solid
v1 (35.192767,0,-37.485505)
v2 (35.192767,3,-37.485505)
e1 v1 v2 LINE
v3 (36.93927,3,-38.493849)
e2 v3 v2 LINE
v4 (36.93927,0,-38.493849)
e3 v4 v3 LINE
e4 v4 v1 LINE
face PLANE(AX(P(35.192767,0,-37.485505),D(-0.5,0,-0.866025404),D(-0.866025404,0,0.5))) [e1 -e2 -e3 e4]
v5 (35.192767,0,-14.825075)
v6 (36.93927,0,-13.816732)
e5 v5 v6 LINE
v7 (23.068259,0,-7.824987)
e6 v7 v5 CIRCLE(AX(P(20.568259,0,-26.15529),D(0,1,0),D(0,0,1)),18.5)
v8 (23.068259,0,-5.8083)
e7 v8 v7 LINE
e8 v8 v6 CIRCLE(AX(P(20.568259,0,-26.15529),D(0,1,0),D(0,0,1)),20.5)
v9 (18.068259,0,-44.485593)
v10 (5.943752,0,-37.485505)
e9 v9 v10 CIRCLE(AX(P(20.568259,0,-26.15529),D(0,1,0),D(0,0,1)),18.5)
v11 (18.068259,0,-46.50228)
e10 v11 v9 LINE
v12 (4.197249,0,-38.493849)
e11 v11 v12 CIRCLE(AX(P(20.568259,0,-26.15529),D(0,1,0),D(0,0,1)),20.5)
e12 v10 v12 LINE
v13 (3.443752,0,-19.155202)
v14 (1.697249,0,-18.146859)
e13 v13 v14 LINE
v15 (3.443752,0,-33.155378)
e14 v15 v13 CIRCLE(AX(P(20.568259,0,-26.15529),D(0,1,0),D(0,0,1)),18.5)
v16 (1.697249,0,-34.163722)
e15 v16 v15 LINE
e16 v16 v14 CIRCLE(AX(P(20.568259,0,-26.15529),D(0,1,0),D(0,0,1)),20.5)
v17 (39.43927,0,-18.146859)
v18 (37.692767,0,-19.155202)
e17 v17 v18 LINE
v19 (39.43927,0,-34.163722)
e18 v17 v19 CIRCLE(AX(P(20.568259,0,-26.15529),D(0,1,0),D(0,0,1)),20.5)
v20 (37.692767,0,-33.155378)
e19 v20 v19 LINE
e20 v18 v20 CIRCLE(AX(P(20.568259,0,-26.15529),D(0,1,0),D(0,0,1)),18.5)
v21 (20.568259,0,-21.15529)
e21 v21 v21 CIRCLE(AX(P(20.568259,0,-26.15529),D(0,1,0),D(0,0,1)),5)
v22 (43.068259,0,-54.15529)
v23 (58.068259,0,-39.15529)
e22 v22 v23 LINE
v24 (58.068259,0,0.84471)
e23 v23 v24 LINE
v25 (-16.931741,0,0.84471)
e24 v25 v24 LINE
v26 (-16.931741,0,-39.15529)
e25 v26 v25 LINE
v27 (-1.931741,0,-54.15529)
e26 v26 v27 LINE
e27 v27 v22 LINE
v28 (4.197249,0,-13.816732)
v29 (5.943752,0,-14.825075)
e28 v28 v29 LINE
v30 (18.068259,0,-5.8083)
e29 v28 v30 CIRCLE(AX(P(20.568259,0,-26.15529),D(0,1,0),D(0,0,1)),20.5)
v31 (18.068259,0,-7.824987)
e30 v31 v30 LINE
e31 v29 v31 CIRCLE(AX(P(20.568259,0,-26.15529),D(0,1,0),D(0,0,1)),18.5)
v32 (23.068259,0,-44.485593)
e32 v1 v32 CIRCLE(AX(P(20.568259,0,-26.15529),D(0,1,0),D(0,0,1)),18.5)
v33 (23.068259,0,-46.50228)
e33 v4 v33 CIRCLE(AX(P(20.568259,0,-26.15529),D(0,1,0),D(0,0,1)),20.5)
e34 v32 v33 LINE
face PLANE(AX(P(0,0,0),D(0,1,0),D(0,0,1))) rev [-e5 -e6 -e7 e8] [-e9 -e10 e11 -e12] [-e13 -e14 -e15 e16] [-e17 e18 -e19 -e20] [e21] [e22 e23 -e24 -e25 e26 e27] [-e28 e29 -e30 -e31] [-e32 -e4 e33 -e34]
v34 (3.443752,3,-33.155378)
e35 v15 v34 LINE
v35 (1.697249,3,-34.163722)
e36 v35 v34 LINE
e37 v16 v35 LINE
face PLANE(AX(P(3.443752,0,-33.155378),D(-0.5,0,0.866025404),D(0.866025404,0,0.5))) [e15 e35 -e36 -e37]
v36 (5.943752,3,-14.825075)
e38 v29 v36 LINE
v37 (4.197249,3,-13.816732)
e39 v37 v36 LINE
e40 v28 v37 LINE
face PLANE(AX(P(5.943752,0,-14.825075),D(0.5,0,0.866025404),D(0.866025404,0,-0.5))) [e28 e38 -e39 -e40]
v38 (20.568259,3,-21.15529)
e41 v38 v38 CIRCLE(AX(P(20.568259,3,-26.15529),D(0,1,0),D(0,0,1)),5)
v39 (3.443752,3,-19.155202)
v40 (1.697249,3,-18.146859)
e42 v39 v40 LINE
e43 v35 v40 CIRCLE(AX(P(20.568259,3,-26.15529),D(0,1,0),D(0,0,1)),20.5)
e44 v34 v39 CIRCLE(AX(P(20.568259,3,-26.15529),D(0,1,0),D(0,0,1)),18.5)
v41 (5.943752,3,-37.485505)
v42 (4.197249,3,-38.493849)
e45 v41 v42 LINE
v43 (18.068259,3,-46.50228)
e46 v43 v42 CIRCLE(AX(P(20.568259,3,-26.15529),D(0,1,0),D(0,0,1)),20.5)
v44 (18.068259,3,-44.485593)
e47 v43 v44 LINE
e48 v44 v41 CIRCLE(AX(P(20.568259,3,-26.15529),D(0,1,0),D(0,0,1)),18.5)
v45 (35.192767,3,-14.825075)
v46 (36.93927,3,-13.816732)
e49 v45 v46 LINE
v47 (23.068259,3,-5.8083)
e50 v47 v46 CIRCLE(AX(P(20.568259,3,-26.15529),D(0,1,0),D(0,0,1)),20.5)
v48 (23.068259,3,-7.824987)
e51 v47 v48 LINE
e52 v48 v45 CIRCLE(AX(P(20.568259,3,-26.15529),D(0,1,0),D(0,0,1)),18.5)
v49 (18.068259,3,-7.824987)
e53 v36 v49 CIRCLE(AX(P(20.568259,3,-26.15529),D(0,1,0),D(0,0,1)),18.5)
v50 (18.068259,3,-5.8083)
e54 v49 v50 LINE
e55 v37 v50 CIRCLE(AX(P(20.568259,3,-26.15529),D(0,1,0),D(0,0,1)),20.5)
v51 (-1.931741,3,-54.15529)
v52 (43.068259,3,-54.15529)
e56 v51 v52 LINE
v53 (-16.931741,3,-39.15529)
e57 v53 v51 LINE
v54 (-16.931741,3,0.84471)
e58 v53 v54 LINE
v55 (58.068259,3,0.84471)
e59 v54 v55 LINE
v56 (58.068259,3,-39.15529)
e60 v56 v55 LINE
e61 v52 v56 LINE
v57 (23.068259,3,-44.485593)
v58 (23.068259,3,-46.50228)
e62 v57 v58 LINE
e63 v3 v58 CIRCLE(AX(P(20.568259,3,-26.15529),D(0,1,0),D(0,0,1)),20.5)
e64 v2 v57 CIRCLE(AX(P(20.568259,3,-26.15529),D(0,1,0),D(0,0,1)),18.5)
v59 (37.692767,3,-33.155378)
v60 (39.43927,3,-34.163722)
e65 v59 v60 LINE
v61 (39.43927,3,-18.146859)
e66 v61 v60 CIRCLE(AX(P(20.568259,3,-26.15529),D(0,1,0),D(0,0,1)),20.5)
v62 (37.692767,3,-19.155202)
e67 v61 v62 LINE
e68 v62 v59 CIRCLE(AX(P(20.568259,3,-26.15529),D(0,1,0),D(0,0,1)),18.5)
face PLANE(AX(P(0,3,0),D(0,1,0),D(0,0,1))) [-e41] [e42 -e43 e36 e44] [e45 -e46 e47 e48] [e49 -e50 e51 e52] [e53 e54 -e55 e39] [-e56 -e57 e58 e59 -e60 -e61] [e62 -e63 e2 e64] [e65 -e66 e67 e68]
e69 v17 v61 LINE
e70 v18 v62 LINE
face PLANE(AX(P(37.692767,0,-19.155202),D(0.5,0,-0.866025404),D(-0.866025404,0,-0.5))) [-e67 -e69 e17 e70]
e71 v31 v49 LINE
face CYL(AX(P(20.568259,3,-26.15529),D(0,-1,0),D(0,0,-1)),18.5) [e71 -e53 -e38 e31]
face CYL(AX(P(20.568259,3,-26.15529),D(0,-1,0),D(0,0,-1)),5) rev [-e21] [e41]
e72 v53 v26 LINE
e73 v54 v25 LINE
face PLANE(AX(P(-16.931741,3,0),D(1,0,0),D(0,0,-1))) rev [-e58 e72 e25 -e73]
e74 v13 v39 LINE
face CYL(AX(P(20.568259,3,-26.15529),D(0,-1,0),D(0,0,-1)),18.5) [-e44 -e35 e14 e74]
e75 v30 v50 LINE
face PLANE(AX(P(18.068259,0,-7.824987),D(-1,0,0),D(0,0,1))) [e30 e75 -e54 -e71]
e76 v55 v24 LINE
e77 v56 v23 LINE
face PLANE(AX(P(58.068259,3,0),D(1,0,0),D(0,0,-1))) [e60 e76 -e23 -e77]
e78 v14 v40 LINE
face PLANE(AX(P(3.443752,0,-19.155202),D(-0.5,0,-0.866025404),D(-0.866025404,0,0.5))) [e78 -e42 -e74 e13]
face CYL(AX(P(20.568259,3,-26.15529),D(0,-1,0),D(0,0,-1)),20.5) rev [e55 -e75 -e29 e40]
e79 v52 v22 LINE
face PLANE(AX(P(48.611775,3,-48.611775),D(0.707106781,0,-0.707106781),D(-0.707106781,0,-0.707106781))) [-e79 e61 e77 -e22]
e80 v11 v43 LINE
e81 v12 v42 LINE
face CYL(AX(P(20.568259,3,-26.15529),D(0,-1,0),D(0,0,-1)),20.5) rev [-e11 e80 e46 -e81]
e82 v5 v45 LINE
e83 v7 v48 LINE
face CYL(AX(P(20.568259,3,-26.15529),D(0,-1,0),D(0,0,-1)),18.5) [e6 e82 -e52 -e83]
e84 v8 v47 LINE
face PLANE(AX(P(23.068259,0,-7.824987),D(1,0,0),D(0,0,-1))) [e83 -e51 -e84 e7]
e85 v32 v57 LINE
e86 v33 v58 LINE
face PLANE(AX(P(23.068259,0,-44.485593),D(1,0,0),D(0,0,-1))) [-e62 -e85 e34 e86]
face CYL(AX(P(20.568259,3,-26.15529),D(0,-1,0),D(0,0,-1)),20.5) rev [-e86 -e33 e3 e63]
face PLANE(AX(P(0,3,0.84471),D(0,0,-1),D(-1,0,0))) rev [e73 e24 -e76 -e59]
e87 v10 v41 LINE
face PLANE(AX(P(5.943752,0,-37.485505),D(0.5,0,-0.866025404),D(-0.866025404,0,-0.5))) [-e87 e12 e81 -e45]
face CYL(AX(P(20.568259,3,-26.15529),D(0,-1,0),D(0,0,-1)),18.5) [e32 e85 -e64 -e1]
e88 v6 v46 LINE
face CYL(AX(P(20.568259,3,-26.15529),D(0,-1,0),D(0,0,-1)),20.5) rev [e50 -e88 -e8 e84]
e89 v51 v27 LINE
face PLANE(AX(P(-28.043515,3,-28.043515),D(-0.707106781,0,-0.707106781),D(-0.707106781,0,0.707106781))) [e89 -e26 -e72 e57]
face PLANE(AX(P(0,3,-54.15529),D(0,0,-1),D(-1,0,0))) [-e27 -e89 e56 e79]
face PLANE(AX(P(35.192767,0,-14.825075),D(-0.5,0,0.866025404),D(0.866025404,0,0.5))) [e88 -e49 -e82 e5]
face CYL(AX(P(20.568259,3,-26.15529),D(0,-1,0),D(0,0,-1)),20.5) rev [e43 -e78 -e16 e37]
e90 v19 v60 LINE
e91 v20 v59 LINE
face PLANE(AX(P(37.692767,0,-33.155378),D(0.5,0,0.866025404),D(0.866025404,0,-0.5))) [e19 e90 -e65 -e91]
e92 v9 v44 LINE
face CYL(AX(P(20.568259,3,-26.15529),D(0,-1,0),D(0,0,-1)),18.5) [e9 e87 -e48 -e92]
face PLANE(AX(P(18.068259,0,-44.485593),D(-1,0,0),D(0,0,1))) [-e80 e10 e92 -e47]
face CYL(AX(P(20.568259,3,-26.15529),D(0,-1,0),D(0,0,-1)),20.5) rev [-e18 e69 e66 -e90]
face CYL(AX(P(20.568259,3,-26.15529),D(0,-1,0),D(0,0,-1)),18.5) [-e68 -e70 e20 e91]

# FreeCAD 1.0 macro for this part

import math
import FreeCAD as App
import Part
import Sketcher
from FreeCAD import Vector
Q = App.Units.Quantity

doc = App.newDocument("Part")
body = doc.addObject("PartDesign::Body", "Body")

sketch1 = body.newObject("Sketcher::SketchObject", "Sketch")
sketch1.AttachmentSupport = (doc.getObject("XZ_Plane"), [""])
sketch1.MapMode = "FlatFace"
sketch1.addGeometry([
    Part.Circle(Vector(21, -26, 0), Vector(0, 0, 1), 18),
    Part.Circle(Vector(21, -26, 0), Vector(0, 0, 1), 5),
], False)
sketch1.addConstraint([
    Sketcher.Constraint("Coincident", 1, 3, 0, 3),
    Sketcher.Constraint("Diameter", 0, 37.0),
    Sketcher.Constraint("Diameter", 1, 10.0),
    Sketcher.Constraint("DistanceX", -1, 1, 0, 3, 20.568259),
    Sketcher.Constraint("DistanceY", 0, 3, -1, 1, 26.15529),
])
pad1 = body.newObject("PartDesign::Pad", "Pad")
pad1.Profile = sketch1
pad1.Length = 3
pad1.Reversed = True
body2 = doc.addObject("PartDesign::Body", "Body001")

sketch2 = body2.newObject("Sketcher::SketchObject", "Sketch001")
sketch2.AttachmentSupport = (doc.getObject("XZ_Plane001"), [""])
sketch2.MapMode = "FlatFace"
sketch2.addGeometry([
    Part.LineSegment(Vector(-2, -54, 0), Vector(-17, -39, 0)),
    Part.LineSegment(Vector(-17, -39, 0), Vector(-17, 1, 0)),
    Part.LineSegment(Vector(-17, 1, 0), Vector(58, 1, 0)),
    Part.LineSegment(Vector(58, 1, 0), Vector(58, -39, 0)),
    Part.LineSegment(Vector(58, -39, 0), Vector(43, -54, 0)),
    Part.LineSegment(Vector(43, -54, 0), Vector(-2, -54, 0)),
    Part.Circle(Vector(21, -26, 0), Vector(0, 0, 1), 20),
], False)
sketch2.addConstraint([
    Sketcher.Constraint("Coincident", 0, 2, 1, 1),
    Sketcher.Constraint("Coincident", 1, 2, 2, 1),
    Sketcher.Constraint("Coincident", 2, 2, 3, 1),
    Sketcher.Constraint("Coincident", 3, 2, 4, 1),
    Sketcher.Constraint("Coincident", 4, 2, 5, 1),
    Sketcher.Constraint("Coincident", 5, 2, 0, 1),
    Sketcher.Constraint("Vertical", 1),
    Sketcher.Constraint("Horizontal", 2),
    Sketcher.Constraint("Vertical", 3),
    Sketcher.Constraint("Horizontal", 5),
    Sketcher.Constraint("Perpendicular", 0, 4),
    Sketcher.Constraint("Horizontal", 0, 2, 3, 2),
    Sketcher.Constraint("Equal", 0, 4),
    Sketcher.Constraint("Diameter", 6, 41.0),
    Sketcher.Constraint("DistanceX", 2, 1, 2, 2, 75.0),
    Sketcher.Constraint("DistanceX", 5, 2, 5, 1, 45.0),
    Sketcher.Constraint("DistanceY", 1, 1, 1, 2, 40.0),
    Sketcher.Constraint("DistanceY", 0, 2, 6, 3, 13.0),
    Sketcher.Constraint("DistanceX", 0, 2, 6, 3, 37.5),
    Sketcher.Constraint("DistanceX", -1, 1, 6, 3, 20.568259),
    Sketcher.Constraint("DistanceY", 6, 3, -1, 1, 26.15529),
])
pad2 = body2.newObject("PartDesign::Pad", "Pad001")
pad2.Profile = sketch2
pad2.Length = 3
pad2.Reversed = True
body.AllowCompound = True
doc.recompute()

boolean = body.newObject("PartDesign::Boolean", "Boolean")
boolean.Type = "Fuse"
boolean.addObjects([body2])

sketch3 = body.newObject("Sketcher::SketchObject", "Sketch002")
sketch3.AttachmentSupport = (doc.getObject("XZ_Plane"), [""])
sketch3.MapMode = "FlatFace"
sketch3.AttachmentOffset = App.Placement(Vector(0, 0, -3), App.Rotation())
sketch3.addGeometry([
    Part.LineSegment(Vector(18.1, -46.5, 0), Vector(18.1, -44.5, 0)),
    Part.ArcOfCircle(Part.Circle(Vector(20.6, -26.2, 0), Vector(0, 0, 1), 18.5), math.radians(-97.77), math.radians(-82.23)),
    Part.LineSegment(Vector(23.1, -44.5, 0), Vector(23.1, -46.5, 0)),
    Part.ArcOfCircle(Part.Circle(Vector(20.6, -26.2, 0), Vector(0, 0, 1), 20.5), math.radians(-97), math.radians(-83)),
    Part.LineSegment(Vector(36.9, -38.5, 0), Vector(35.2, -37.5, 0)),
    Part.ArcOfCircle(Part.Circle(Vector(20.6, -26.2, 0), Vector(0, 0, 1), 18.5), math.radians(-37.77), math.radians(-22.23)),
    Part.LineSegment(Vector(37.7, -33.2, 0), Vector(39.4, -34.2, 0)),
    Part.ArcOfCircle(Part.Circle(Vector(20.6, -26.2, 0), Vector(0, 0, 1), 20.5), math.radians(-37), math.radians(-23)),
    Part.LineSegment(Vector(39.4, -18.1, 0), Vector(37.7, -19.2, 0)),
    Part.ArcOfCircle(Part.Circle(Vector(20.6, -26.2, 0), Vector(0, 0, 1), 18.5), math.radians(22.23), math.radians(37.77)),
    Part.LineSegment(Vector(35.2, -14.8, 0), Vector(36.9, -13.8, 0)),
    Part.ArcOfCircle(Part.Circle(Vector(20.6, -26.2, 0), Vector(0, 0, 1), 20.5), math.radians(23), math.radians(37)),
    Part.LineSegment(Vector(23.1, -5.8, 0), Vector(23.1, -7.8, 0)),
    Part.ArcOfCircle(Part.Circle(Vector(20.6, -26.2, 0), Vector(0, 0, 1), 18.5), math.radians(82.23), math.radians(97.77)),
    Part.LineSegment(Vector(18.1, -7.8, 0), Vector(18.1, -5.8, 0)),
    Part.ArcOfCircle(Part.Circle(Vector(20.6, -26.2, 0), Vector(0, 0, 1), 20.5), math.radians(83), math.radians(97)),
    Part.LineSegment(Vector(4.2, -13.8, 0), Vector(5.9, -14.8, 0)),
    Part.ArcOfCircle(Part.Circle(Vector(20.6, -26.2, 0), Vector(0, 0, 1), 18.5), math.radians(142.23), math.radians(157.77)),
    Part.LineSegment(Vector(3.4, -19.2, 0), Vector(1.7, -18.1, 0)),
    Part.ArcOfCircle(Part.Circle(Vector(20.6, -26.2, 0), Vector(0, 0, 1), 20.5), math.radians(143), math.radians(157)),
    Part.LineSegment(Vector(1.7, -34.2, 0), Vector(3.4, -33.2, 0)),
    Part.ArcOfCircle(Part.Circle(Vector(20.6, -26.2, 0), Vector(0, 0, 1), 18.5), math.radians(-157.77), math.radians(-142.23)),
    Part.LineSegment(Vector(5.9, -37.5, 0), Vector(4.2, -38.5, 0)),
    Part.ArcOfCircle(Part.Circle(Vector(20.6, -26.2, 0), Vector(0, 0, 1), 20.5), math.radians(-157), math.radians(-143)),
], False)
sketch3.addConstraint([
    Sketcher.Constraint("Coincident", 0, 2, 1, 1),
    Sketcher.Constraint("Coincident", 1, 2, 2, 1),
    Sketcher.Constraint("Coincident", 2, 2, 3, 2),
    Sketcher.Constraint("Coincident", 3, 1, 0, 1),
    Sketcher.Constraint("Coincident", 4, 2, 5, 1),
    Sketcher.Constraint("Coincident", 5, 2, 6, 1),
    Sketcher.Constraint("Coincident", 6, 2, 7, 2),
    Sketcher.Constraint("Coincident", 7, 1, 4, 1),
    Sketcher.Constraint("Coincident", 8, 2, 9, 1),
    Sketcher.Constraint("Coincident", 9, 2, 10, 1),
    Sketcher.Constraint("Coincident", 10, 2, 11, 2),
    Sketcher.Constraint("Coincident", 11, 1, 8, 1),
    Sketcher.Constraint("Coincident", 12, 2, 13, 1),
    Sketcher.Constraint("Coincident", 13, 2, 14, 1),
    Sketcher.Constraint("Coincident", 14, 2, 15, 2),
    Sketcher.Constraint("Coincident", 15, 1, 12, 1),
    Sketcher.Constraint("Coincident", 16, 2, 17, 1),
    Sketcher.Constraint("Coincident", 17, 2, 18, 1),
    Sketcher.Constraint("Coincident", 18, 2, 19, 2),
    Sketcher.Constraint("Coincident", 19, 1, 16, 1),
    Sketcher.Constraint("Coincident", 20, 2, 21, 1),
    Sketcher.Constraint("Coincident", 21, 2, 22, 1),
    Sketcher.Constraint("Coincident", 22, 2, 23, 2),
    Sketcher.Constraint("Coincident", 23, 1, 20, 1),
    Sketcher.Constraint("Vertical", 0),
    Sketcher.Constraint("Vertical", 2),
    Sketcher.Constraint("Vertical", 12),
    Sketcher.Constraint("Vertical", 14),
    Sketcher.Constraint("Coincident", 3, 3, 1, 3),
    Sketcher.Constraint("Coincident", 5, 3, 1, 3),
    Sketcher.Constraint("Coincident", 7, 3, 1, 3),
    Sketcher.Constraint("Coincident", 9, 3, 1, 3),
    Sketcher.Constraint("Coincident", 11, 3, 1, 3),
    Sketcher.Constraint("Coincident", 13, 3, 1, 3),
    Sketcher.Constraint("Coincident", 15, 3, 1, 3),
    Sketcher.Constraint("Coincident", 17, 3, 1, 3),
    Sketcher.Constraint("Coincident", 19, 3, 1, 3),
    Sketcher.Constraint("Coincident", 21, 3, 1, 3),
    Sketcher.Constraint("Coincident", 23, 3, 1, 3),
    Sketcher.Constraint("Equal", 1, 5),
    Sketcher.Constraint("Equal", 3, 7),
    Sketcher.Constraint("Equal", 5, 9),
    Sketcher.Constraint("Equal", 7, 11),
    Sketcher.Constraint("Equal", 9, 13),
    Sketcher.Constraint("Equal", 11, 15),
    Sketcher.Constraint("Equal", 13, 17),
    Sketcher.Constraint("Equal", 15, 19),
    Sketcher.Constraint("Equal", 17, 21),
    Sketcher.Constraint("Equal", 19, 23),
    Sketcher.Constraint("Parallel", 4, 6),
    Sketcher.Constraint("Parallel", 8, 10),
    Sketcher.Constraint("Parallel", 6, 16),
    Sketcher.Constraint("Parallel", 16, 18),
    Sketcher.Constraint("Parallel", 10, 20),
    Sketcher.Constraint("Parallel", 20, 22),
    Sketcher.Constraint("Horizontal", 0, 2, 1, 2),
    Sketcher.Constraint("Horizontal", 12, 2, 13, 2),
    Sketcher.Constraint("Horizontal", 9, 2, 16, 2),
    Sketcher.Constraint("Horizontal", 8, 2, 17, 2),
    Sketcher.Constraint("Horizontal", 11, 1, 18, 2),
    Sketcher.Constraint("Horizontal", 5, 2, 20, 2),
    Sketcher.Constraint("Horizontal", 4, 2, 21, 2),
    Sketcher.Constraint("Vertical", 5, 2, 8, 2),
    Sketcher.Constraint("Vertical", 4, 2, 9, 2),
    Sketcher.Constraint("Vertical", 2, 2, 12, 2),
    Sketcher.Constraint("Equal", 4, 6),
    Sketcher.Constraint("Radius", 1, 18.5),
    Sketcher.Constraint("Radius", 3, 20.5),
    Sketcher.Constraint("Angle", 4, Q("150 deg")),
    Sketcher.Constraint("DistanceX", 0, 2, 1, 2, 5.0),
    Sketcher.Constraint("DistanceX", 4, 2, 5, 2, 2.5),
    Sketcher.Constraint("DistanceY", 14, 2, -1, 1, 5.8083),
    Sketcher.Constraint("DistanceX", -1, 1, 1, 3, 20.568259),
])
pad3 = body.newObject("PartDesign::Pad", "Pad002")
pad3.Profile = sketch3
pad3.Length = 3

doc.recompute()
